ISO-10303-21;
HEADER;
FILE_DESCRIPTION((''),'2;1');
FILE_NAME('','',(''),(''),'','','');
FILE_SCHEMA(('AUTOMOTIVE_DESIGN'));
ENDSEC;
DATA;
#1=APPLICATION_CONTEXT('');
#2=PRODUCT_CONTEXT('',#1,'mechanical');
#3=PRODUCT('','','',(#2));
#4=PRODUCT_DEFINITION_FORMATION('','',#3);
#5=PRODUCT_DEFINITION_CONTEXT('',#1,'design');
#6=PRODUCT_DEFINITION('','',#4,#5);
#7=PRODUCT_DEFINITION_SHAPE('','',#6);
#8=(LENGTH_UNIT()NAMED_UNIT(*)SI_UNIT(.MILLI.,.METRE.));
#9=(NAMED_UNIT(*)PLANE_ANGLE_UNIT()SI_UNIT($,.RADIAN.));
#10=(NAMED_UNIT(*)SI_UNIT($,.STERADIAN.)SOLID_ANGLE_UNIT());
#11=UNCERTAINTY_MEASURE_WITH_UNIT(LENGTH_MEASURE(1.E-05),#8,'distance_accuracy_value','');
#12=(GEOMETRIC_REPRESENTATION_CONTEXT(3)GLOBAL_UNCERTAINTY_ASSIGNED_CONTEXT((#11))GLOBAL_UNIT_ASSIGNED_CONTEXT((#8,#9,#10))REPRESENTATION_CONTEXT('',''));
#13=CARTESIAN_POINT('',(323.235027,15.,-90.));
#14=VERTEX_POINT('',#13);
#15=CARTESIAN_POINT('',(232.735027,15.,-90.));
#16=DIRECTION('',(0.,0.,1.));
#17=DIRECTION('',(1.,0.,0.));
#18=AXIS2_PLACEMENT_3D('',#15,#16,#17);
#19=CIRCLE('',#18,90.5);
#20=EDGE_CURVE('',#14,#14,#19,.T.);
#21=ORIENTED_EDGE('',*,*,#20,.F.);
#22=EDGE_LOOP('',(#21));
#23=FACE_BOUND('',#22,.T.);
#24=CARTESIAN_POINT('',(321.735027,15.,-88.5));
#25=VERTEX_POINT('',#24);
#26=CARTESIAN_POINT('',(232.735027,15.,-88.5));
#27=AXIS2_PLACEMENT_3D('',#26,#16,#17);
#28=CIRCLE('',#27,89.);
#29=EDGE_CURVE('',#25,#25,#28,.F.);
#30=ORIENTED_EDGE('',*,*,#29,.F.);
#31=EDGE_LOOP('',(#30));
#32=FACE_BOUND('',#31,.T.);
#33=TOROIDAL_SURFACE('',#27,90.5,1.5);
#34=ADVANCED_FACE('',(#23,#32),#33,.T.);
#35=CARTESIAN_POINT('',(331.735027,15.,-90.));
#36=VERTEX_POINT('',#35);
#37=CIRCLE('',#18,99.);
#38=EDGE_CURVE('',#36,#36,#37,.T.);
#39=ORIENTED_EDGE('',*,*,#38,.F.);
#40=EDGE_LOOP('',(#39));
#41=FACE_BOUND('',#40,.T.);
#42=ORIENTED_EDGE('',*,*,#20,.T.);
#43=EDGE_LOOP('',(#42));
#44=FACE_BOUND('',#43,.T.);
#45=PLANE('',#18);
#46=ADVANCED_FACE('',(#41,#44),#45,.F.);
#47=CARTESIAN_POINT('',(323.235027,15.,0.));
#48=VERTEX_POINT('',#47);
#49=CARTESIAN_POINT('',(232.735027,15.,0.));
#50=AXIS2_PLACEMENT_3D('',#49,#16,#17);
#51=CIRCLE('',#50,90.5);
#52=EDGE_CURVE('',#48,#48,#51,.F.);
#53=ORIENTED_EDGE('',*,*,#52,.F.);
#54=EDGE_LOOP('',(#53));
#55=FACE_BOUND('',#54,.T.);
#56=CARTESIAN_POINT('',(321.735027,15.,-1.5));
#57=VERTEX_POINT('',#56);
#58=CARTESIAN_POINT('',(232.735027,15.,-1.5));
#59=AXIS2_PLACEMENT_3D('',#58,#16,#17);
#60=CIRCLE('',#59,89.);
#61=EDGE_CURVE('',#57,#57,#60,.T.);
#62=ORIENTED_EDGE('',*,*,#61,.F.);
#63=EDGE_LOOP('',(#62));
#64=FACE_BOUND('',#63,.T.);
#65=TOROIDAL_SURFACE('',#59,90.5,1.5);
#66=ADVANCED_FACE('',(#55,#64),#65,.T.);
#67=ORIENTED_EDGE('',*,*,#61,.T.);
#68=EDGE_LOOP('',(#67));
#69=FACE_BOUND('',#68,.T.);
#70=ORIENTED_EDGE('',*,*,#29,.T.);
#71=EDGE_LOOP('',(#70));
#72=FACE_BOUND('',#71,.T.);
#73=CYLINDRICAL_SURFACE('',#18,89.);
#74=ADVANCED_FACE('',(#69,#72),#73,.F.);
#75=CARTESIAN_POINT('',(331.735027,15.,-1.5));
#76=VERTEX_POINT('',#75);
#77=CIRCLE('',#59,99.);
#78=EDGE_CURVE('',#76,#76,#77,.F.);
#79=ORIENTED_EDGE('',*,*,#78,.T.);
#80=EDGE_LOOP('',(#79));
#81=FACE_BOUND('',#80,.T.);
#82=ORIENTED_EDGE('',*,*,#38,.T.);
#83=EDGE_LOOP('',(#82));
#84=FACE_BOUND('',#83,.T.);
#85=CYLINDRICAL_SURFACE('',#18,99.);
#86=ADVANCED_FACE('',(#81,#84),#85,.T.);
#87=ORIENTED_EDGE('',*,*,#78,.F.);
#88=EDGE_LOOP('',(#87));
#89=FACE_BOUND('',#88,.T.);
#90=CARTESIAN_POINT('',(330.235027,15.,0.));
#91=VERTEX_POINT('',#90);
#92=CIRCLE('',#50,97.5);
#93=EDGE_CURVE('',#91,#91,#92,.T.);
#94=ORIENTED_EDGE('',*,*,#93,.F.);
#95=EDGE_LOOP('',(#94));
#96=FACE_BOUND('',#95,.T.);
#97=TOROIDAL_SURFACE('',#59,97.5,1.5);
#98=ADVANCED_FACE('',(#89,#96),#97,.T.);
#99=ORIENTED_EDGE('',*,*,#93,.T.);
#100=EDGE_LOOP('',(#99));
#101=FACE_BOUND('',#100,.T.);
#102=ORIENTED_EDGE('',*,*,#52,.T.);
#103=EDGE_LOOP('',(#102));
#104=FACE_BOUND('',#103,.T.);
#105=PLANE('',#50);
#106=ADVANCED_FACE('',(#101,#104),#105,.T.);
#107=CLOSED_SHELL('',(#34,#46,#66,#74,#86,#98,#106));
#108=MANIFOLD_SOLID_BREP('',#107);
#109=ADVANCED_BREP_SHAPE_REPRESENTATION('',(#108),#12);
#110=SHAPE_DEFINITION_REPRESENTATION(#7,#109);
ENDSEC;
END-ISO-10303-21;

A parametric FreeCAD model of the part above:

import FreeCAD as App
import Part
import Sketcher
Q = App.Units.Quantity


def edges_at(feature, points):
    """Names of the edges that pass closest to the given points."""
    edges = feature.Shape.Edges
    near = lambda p: min(range(len(edges)), key=lambda i: edges[i].distToShape(Part.Vertex(*p))[0])
    return sorted({f"Edge{near(p) + 1}" for p in points})

doc = App.newDocument("Part")
body = doc.addObject("PartDesign::Body", "Body")

sketch1 = body.newObject("Sketcher::SketchObject", "Sketch")
sketch1.AttachmentSupport = (doc.getObject("XY_Plane"), [""])
sketch1.MapMode = "FlatFace"
sketch1.addGeometry(Part.Circle(App.Vector(233, 15, 0), App.Vector(0, 0, 1), 99), False)
sketch1.addGeometry(Part.Circle(App.Vector(233, 15, 0), App.Vector(0, 0, 1), 89), False)
sketch1.addConstraint(Sketcher.Constraint("Coincident", 1, 3, 0, 3))
sketch1.addConstraint(Sketcher.Constraint("Diameter", 0, Q("198 mm")))
sketch1.addConstraint(Sketcher.Constraint("Diameter", 1, Q("178 mm")))
sketch1.addConstraint(Sketcher.Constraint("DistanceY", -1, 1, 0, 3, Q("15 mm")))
sketch1.addConstraint(Sketcher.Constraint("DistanceX", -1, 1, 0, 3, Q("232.735027 mm")))
pad1 = body.newObject("PartDesign::Pad", "Pad")
pad1.Profile = sketch1
pad1.Length = 90
pad1.Reversed = True
doc.recompute()

fillet = body.newObject("PartDesign::Fillet", "Fillet")
fillet.Base = (pad1, edges_at(pad1, [(133.735, 15, 0), (143.735, 15, -90), (143.735, 15, 0)]))
fillet.Radius = 1.5

doc.recompute()
